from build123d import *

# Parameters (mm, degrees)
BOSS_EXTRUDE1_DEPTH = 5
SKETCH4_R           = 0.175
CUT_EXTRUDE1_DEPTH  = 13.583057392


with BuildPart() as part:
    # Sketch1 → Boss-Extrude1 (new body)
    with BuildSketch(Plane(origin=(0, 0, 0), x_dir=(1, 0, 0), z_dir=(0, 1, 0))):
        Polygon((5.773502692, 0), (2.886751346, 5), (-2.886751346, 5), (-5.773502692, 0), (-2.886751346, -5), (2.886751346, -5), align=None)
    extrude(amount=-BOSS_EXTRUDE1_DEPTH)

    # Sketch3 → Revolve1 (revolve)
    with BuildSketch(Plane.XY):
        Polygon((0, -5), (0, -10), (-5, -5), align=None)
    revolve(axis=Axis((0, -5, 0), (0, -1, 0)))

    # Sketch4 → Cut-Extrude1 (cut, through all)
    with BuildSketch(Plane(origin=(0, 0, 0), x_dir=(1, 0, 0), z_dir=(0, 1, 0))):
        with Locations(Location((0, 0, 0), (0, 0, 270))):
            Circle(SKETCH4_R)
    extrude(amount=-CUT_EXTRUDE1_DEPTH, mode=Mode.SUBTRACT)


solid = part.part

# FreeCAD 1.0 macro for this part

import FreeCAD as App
import Part
import Sketcher
Q = App.Units.Quantity


def add_polygon(sketch, points):
    """Adds a closed chain of lines whose ends are joined by coincident constraints."""
    first, n = sketch.GeometryCount, len(points)
    for a, b in zip(points, points[1:] + points[:1]):
        sketch.addGeometry(Part.LineSegment(App.Vector(*a, 0), App.Vector(*b, 0)), False)
    for i in range(n):
        sketch.addConstraint(Sketcher.Constraint("Coincident", first + i, 2, first + (i + 1) % n, 1))

doc = App.newDocument("Part")
body = doc.addObject("PartDesign::Body", "Body")

sketch1 = body.newObject("Sketcher::SketchObject", "Sketch")
sketch1.AttachmentSupport = (doc.getObject("XZ_Plane"), [""])
sketch1.MapMode = "FlatFace"
add_polygon(sketch1, [(6, 0), (3, -5), (-3, -5), (-6, 0), (-3, 5), (3, 5)])
sketch1.addConstraint(Sketcher.Constraint("Horizontal", 1))
sketch1.addConstraint(Sketcher.Constraint("Horizontal", 4))
sketch1.addConstraint(Sketcher.Constraint("Symmetric", 0, 2, 3, 2, -1, 1))
sketch1.addConstraint(Sketcher.Constraint("Symmetric", 2, 2, 5, 2, -1, 1))
sketch1.addConstraint(Sketcher.Constraint("PointOnObject", 2, 2, -1))
sketch1.addConstraint(Sketcher.Constraint("Parallel", 2, 5))
sketch1.addConstraint(Sketcher.Constraint("Vertical", 1, 2, 3, 2))
sketch1.addConstraint(Sketcher.Constraint("Angle", 0, Q("-120 deg")))
sketch1.addConstraint(Sketcher.Constraint("DistanceY", 0, 2, -1, 1, 5.0))
sketch1.addConstraint(Sketcher.Constraint("DistanceX", 1, 2, 1, 1, 5.773503))
pad1 = body.newObject("PartDesign::Pad", "Pad")
pad1.Profile = sketch1
pad1.Length = 5

sketch2 = body.newObject("Sketcher::SketchObject", "Sketch001")
sketch2.AttachmentSupport = (doc.getObject("XY_Plane"), [""])
sketch2.MapMode = "FlatFace"
add_polygon(sketch2, [(0, -10), (0, -5), (-5, -5)])
sketch2.addConstraint(Sketcher.Constraint("Vertical", 0))
sketch2.addConstraint(Sketcher.Constraint("Horizontal", 1))
sketch2.addConstraint(Sketcher.Constraint("PointOnObject", 0, 2, -2))
sketch2.addConstraint(Sketcher.Constraint("Equal", 1, 0))
sketch2.addConstraint(Sketcher.Constraint("DistanceX", 1, 2, 1, 1, 5.0))
sketch2.addConstraint(Sketcher.Constraint("DistanceY", 0, 2, -1, 1, 5.0))
revolution = body.newObject("PartDesign::Revolution", "Revolution")
revolution.Profile = sketch2
revolution.ReferenceAxis = (sketch2, ["V_Axis"])
revolution.Angle = 360

sketch3 = body.newObject("Sketcher::SketchObject", "Sketch002")
sketch3.AttachmentSupport = (doc.getObject("XZ_Plane"), [""])
sketch3.MapMode = "FlatFace"
sketch3.addGeometry(Part.Circle(App.Vector(0, 0, 0), App.Vector(0, 0, 1), 0.17), False)
sketch3.addConstraint(Sketcher.Constraint("Coincident", 0, 3, -1, 1))
sketch3.addConstraint(Sketcher.Constraint("Diameter", 0, 0.35))
pocket1 = body.newObject("PartDesign::Pocket", "Pocket")
pocket1.Profile = sketch3
pocket1.Type = "ThroughAll"
pocket1.Reversed = True

doc.recompute()
